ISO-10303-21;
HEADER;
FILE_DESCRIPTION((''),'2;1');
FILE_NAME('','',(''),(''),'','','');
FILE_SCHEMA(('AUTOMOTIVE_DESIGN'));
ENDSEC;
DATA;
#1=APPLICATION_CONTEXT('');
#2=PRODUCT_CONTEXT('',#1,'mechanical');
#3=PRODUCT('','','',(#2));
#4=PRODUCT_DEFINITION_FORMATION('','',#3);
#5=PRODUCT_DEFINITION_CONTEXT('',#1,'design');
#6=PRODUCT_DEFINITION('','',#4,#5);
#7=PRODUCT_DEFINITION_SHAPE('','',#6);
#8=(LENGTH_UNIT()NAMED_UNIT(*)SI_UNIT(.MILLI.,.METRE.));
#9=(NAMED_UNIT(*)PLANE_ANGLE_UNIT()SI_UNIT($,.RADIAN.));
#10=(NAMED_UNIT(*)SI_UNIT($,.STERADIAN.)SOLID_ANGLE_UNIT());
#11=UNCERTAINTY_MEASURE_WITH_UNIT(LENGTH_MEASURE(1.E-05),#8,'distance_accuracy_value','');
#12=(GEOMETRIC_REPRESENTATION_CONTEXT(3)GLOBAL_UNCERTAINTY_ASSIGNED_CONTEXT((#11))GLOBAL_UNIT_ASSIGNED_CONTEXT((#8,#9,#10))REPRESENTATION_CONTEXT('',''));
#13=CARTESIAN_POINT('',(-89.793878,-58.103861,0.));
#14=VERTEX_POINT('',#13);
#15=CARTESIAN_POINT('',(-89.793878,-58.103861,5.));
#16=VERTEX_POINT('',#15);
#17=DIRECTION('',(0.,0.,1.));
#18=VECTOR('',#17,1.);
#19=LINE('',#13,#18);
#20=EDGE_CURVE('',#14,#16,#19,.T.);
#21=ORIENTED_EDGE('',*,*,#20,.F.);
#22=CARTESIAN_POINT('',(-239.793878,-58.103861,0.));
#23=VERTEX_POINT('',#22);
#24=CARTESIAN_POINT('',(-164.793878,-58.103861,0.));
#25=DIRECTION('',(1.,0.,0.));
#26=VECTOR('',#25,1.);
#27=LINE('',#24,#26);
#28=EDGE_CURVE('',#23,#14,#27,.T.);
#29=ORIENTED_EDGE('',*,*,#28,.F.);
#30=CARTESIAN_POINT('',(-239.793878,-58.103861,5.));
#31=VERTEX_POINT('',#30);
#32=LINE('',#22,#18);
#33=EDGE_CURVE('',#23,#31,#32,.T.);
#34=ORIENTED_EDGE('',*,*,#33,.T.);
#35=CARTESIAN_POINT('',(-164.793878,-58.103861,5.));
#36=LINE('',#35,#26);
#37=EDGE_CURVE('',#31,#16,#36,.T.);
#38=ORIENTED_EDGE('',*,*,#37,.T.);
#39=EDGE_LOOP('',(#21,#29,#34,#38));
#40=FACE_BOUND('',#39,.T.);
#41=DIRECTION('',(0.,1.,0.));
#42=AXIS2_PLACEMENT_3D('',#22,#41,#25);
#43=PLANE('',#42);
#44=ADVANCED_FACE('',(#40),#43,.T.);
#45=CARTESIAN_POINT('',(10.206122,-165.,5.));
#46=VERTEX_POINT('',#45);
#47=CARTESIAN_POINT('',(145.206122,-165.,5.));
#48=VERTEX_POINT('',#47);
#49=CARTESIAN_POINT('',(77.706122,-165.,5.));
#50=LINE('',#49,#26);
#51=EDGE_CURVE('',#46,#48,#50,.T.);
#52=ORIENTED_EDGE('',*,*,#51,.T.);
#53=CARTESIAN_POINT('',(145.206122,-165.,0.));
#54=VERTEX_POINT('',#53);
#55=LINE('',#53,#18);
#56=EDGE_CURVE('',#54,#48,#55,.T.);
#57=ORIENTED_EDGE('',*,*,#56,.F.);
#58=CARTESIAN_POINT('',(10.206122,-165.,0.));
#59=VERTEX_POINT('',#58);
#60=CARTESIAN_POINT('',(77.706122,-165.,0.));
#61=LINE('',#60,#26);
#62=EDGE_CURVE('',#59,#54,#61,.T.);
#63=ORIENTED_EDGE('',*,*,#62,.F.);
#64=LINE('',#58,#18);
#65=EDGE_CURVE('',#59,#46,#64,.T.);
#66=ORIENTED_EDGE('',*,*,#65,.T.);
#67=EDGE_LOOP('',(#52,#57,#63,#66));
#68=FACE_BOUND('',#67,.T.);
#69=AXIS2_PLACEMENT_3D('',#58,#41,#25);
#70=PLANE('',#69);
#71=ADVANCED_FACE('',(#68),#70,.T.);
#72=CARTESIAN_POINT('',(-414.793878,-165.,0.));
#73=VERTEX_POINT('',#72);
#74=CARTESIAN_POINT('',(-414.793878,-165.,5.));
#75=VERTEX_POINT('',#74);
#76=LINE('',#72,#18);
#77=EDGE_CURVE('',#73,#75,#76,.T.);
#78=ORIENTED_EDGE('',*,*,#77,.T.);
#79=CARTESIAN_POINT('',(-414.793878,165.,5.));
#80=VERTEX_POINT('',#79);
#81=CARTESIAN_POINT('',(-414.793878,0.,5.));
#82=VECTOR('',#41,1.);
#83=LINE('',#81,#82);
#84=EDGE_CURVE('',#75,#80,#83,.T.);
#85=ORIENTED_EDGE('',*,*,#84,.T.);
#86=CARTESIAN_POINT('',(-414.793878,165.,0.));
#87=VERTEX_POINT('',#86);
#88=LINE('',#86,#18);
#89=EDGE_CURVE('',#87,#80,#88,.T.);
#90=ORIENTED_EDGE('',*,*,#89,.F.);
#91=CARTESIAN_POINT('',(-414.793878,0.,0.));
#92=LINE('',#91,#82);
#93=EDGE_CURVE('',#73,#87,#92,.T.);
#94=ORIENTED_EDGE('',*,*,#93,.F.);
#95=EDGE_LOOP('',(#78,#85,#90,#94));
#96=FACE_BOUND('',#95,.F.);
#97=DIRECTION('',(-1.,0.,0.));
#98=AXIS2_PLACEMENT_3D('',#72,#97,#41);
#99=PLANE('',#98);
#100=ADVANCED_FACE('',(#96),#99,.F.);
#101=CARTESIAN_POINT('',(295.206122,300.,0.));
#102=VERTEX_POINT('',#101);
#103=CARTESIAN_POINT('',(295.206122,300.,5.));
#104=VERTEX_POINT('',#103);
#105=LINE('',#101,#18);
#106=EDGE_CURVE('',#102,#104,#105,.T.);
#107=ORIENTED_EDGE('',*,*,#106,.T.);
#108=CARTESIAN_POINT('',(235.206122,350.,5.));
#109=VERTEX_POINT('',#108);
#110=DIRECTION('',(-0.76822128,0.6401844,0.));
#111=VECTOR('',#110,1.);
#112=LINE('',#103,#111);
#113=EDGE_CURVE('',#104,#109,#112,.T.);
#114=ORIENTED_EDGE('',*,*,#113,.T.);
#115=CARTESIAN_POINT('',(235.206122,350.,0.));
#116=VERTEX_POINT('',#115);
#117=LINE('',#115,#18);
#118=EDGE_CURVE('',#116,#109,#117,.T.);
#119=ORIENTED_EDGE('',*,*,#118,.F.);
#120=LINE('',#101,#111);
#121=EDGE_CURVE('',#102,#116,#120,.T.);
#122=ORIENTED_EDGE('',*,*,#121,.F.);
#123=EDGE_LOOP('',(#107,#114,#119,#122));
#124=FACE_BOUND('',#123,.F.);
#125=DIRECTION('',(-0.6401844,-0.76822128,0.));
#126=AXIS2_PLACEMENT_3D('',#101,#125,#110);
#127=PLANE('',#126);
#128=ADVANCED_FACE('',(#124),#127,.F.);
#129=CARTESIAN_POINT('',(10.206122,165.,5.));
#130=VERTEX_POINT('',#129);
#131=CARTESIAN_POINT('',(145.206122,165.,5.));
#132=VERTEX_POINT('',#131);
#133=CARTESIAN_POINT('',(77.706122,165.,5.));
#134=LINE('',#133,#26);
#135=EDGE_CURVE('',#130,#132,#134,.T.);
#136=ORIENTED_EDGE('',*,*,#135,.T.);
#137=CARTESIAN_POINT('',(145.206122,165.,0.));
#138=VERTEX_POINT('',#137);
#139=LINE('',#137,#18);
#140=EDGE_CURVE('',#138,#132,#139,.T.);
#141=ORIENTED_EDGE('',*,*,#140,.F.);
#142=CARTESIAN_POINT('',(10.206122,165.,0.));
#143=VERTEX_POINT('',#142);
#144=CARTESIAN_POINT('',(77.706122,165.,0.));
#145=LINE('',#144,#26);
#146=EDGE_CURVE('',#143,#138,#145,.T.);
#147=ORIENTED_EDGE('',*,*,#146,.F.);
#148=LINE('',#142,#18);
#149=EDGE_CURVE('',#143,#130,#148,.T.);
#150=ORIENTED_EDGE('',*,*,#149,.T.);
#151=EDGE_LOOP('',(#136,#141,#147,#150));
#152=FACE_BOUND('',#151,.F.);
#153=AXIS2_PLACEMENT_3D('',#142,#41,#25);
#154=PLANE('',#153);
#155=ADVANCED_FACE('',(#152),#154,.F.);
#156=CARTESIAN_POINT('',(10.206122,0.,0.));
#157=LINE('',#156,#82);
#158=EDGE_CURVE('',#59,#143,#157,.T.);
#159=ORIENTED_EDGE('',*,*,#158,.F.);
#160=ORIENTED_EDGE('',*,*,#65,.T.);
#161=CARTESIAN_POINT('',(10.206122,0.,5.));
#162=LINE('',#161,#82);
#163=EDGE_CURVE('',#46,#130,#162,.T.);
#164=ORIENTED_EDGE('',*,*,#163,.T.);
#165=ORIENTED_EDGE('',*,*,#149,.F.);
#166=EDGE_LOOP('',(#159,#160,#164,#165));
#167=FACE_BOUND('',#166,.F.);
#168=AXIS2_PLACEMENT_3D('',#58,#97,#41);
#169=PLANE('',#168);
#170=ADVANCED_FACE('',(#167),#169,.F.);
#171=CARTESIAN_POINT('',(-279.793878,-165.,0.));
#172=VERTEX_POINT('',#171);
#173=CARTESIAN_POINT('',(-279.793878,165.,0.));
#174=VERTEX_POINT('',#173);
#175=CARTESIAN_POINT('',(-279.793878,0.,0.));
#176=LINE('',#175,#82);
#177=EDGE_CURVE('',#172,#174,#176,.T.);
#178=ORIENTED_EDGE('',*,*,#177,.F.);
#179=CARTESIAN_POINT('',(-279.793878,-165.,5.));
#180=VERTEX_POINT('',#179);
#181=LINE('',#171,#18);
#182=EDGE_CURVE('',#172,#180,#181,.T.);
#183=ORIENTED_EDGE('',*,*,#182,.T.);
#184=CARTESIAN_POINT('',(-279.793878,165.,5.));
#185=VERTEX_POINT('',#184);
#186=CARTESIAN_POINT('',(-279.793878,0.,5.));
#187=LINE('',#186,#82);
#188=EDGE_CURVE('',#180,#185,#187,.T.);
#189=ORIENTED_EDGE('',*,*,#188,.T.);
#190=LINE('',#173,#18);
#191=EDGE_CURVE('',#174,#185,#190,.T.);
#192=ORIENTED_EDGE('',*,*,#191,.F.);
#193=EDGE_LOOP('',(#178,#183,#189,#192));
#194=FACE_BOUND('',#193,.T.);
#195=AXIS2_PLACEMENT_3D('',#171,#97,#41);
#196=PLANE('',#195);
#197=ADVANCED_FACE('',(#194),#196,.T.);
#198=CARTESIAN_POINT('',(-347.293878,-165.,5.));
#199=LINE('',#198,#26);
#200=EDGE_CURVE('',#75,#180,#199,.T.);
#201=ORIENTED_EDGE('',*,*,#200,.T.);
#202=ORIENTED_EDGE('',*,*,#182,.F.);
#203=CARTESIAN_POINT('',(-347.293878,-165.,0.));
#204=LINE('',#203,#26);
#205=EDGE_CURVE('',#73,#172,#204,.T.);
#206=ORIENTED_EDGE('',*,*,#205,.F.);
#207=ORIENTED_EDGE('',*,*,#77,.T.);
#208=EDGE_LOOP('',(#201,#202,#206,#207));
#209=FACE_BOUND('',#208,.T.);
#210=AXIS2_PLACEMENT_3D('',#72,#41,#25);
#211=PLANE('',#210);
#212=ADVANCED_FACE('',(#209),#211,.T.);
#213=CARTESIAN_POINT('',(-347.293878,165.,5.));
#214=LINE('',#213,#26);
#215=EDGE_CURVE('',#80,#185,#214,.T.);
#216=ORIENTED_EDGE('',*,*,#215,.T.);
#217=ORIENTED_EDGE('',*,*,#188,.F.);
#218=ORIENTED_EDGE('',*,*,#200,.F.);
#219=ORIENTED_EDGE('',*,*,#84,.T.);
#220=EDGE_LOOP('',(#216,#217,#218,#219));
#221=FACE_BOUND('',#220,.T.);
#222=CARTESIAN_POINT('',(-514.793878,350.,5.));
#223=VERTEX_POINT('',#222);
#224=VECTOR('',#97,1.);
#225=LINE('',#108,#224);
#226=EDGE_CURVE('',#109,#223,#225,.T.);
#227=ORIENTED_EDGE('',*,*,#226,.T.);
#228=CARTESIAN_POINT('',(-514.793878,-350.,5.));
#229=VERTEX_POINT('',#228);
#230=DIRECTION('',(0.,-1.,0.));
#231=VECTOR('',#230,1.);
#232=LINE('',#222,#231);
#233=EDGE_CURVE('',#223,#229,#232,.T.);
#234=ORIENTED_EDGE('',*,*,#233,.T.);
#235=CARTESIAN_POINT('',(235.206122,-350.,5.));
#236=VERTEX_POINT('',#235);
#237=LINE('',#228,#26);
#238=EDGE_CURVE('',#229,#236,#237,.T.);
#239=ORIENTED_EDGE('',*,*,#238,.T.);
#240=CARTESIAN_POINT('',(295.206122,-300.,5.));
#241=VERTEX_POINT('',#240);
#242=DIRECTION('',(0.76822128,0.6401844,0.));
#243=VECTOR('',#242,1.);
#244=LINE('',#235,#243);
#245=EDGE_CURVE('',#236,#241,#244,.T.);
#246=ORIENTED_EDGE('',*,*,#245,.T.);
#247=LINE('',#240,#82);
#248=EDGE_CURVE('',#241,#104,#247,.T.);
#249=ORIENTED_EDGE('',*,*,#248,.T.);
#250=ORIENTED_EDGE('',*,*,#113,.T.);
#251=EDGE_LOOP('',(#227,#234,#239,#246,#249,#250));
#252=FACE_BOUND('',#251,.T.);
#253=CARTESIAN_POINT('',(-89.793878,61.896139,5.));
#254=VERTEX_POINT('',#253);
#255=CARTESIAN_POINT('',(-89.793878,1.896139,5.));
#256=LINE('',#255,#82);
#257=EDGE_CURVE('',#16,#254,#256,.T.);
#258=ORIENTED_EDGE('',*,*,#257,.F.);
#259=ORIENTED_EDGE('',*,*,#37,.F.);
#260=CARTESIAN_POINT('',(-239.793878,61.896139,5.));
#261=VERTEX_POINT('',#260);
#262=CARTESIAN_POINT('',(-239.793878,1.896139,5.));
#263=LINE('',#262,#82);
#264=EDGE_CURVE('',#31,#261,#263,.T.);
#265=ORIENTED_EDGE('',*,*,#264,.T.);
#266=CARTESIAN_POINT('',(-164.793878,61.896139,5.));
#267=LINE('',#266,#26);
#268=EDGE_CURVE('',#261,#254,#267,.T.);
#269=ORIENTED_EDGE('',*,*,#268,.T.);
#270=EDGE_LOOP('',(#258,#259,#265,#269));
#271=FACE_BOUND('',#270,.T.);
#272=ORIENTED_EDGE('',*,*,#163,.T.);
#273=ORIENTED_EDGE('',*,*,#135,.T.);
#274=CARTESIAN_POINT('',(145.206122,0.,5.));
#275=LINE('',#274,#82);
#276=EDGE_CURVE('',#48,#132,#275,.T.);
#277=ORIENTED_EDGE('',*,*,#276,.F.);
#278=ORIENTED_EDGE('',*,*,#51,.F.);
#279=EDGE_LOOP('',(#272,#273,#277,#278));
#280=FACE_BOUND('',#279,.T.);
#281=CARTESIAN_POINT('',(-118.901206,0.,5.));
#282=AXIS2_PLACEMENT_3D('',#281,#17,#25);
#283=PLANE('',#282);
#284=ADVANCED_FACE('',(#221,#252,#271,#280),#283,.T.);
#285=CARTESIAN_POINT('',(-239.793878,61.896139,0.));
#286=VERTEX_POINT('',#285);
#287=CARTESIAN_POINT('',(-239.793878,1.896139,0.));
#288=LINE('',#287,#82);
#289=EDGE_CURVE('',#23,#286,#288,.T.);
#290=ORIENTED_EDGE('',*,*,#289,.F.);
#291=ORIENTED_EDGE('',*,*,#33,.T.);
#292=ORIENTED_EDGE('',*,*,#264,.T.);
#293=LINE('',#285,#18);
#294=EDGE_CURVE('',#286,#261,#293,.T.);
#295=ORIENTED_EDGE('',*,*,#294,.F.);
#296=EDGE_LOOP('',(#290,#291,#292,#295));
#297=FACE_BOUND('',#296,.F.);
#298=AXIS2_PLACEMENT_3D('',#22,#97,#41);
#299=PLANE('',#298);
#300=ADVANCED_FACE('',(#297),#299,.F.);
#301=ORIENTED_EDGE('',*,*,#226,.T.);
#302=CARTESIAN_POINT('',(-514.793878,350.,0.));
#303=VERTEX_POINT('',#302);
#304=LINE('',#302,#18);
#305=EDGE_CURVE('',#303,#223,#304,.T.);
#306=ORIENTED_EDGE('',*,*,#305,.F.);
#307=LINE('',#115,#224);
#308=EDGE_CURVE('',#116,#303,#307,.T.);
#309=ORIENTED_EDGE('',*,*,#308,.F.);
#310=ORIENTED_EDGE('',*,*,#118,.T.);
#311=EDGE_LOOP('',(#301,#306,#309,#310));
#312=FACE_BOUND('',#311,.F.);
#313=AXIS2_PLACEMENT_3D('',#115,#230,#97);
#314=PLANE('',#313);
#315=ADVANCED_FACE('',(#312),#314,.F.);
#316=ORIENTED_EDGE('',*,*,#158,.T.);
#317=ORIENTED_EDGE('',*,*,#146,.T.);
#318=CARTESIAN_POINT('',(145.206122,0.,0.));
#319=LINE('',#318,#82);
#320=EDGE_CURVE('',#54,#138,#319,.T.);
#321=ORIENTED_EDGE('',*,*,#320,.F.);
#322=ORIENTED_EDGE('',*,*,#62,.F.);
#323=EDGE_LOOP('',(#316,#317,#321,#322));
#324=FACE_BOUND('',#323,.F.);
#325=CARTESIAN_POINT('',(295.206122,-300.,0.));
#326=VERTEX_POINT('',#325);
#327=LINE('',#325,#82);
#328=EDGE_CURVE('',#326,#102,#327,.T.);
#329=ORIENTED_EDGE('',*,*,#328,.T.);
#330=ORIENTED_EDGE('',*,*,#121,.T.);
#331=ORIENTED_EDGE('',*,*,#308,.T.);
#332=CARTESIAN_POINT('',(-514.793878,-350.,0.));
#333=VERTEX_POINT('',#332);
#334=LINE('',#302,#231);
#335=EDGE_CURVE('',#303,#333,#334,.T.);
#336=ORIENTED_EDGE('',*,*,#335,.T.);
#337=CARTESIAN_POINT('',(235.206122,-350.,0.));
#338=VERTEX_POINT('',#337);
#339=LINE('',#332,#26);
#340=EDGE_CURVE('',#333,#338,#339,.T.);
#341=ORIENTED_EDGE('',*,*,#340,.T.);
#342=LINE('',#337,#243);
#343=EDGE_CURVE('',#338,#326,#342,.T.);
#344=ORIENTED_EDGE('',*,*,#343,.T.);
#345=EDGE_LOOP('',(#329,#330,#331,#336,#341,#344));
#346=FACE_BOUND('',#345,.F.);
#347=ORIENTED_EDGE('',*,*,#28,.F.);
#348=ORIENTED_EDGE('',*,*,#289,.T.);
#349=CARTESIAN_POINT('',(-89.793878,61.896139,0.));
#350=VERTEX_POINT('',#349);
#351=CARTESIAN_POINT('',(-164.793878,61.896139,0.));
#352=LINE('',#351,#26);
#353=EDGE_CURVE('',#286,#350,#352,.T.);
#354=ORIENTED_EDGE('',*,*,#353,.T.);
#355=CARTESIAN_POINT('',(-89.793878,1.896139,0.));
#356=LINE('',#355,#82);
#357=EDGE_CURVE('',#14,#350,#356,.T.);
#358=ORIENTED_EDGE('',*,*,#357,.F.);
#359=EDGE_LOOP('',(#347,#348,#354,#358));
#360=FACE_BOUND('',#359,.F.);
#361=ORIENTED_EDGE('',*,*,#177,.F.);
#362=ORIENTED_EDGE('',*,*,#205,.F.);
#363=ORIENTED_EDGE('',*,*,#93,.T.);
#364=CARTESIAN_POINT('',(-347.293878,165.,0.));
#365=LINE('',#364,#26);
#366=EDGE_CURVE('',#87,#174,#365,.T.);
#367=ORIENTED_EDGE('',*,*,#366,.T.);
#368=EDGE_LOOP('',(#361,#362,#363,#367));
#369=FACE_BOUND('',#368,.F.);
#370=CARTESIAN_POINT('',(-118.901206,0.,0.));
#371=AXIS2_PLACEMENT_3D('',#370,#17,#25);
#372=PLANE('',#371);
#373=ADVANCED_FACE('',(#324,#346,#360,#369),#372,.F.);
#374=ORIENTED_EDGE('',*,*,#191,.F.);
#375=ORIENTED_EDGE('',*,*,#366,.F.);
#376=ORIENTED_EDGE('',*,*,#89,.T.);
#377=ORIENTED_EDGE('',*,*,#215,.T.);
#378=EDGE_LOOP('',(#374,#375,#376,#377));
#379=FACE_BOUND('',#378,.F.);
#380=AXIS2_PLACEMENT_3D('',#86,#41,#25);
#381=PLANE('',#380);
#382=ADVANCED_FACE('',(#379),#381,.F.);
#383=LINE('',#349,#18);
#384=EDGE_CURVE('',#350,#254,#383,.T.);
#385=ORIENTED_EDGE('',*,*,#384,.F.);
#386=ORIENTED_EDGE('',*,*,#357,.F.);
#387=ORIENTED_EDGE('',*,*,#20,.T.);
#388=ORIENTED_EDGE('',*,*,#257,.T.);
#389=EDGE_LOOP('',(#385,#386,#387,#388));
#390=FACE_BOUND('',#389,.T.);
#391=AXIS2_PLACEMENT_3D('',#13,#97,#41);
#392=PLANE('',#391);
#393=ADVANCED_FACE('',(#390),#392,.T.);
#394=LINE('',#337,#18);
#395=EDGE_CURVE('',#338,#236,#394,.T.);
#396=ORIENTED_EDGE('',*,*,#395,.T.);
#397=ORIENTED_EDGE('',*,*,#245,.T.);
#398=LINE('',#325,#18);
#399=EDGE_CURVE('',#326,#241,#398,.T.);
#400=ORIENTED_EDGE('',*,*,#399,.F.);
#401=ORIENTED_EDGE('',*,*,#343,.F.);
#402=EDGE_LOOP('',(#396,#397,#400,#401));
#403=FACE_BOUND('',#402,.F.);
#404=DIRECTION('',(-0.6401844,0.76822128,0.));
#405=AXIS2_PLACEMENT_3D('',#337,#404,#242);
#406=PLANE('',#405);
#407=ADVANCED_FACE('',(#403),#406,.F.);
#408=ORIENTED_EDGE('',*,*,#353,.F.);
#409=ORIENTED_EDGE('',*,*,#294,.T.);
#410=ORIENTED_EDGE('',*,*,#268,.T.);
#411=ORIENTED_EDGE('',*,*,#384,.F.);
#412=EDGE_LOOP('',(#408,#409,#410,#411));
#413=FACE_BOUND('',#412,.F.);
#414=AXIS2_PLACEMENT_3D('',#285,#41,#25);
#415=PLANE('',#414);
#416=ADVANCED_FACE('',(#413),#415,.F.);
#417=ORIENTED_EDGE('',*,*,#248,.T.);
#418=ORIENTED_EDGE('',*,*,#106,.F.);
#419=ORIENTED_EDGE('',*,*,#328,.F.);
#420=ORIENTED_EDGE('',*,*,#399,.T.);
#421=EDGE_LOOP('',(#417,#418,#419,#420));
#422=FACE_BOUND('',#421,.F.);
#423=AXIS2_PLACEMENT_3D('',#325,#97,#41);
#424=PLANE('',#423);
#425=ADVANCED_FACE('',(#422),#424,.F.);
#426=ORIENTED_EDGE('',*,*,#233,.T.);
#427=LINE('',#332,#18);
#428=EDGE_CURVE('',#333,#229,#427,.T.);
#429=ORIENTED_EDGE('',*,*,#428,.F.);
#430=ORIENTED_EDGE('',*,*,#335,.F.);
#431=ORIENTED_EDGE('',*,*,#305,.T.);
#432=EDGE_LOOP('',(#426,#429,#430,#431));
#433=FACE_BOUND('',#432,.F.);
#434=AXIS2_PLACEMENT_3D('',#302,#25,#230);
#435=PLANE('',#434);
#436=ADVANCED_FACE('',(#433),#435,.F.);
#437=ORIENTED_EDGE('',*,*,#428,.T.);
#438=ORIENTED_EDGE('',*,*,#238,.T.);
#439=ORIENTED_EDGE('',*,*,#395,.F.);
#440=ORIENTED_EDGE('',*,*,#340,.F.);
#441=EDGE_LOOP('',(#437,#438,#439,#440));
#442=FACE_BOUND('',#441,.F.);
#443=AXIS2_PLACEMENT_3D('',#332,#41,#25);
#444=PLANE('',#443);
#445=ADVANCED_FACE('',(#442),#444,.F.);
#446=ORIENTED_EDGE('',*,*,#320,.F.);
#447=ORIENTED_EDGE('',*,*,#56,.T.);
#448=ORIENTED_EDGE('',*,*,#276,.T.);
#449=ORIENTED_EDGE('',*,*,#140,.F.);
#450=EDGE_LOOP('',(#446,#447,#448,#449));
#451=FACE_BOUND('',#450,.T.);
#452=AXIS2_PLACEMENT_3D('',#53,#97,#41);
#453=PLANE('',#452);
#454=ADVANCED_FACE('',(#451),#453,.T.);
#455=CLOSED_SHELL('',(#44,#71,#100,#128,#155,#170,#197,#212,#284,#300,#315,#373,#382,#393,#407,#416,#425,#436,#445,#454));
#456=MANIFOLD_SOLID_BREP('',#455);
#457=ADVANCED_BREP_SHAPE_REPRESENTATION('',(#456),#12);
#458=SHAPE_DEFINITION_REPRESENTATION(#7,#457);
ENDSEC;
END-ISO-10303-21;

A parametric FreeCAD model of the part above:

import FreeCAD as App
import Part
import Sketcher
from FreeCAD import Vector
Q = App.Units.Quantity

doc = App.newDocument("Part")
body = doc.addObject("PartDesign::Body", "Body")

sketch1 = body.newObject("Sketcher::SketchObject", "Sketch")
sketch1.AttachmentSupport = (doc.getObject("XY_Plane"), [""])
sketch1.MapMode = "FlatFace"
sketch1.addGeometry(Part.LineSegment(Vector(295, 300, 0), Vector(235, 350, 0)), False)
sketch1.addGeometry(Part.LineSegment(Vector(235, 350, 0), Vector(-515, 350, 0)), False)
sketch1.addGeometry(Part.LineSegment(Vector(-515, 350, 0), Vector(-515, -350, 0)), False)
sketch1.addGeometry(Part.LineSegment(Vector(-515, -350, 0), Vector(235, -350, 0)), False)
sketch1.addGeometry(Part.LineSegment(Vector(235, -350, 0), Vector(295, -300, 0)), False)
sketch1.addGeometry(Part.LineSegment(Vector(295, -300, 0), Vector(295, 300, 0)), False)
sketch1.addGeometry(Part.LineSegment(Vector(-280, -165, 0), Vector(-415, -165, 0)), False)
sketch1.addGeometry(Part.LineSegment(Vector(-415, -165, 0), Vector(-415, 165, 0)), False)
sketch1.addGeometry(Part.LineSegment(Vector(-415, 165, 0), Vector(-280, 165, 0)), False)
sketch1.addGeometry(Part.LineSegment(Vector(-280, 165, 0), Vector(-280, -165, 0)), False)
sketch1.addGeometry(Part.LineSegment(Vector(-90, -58, 0), Vector(-240, -58, 0)), False)
sketch1.addGeometry(Part.LineSegment(Vector(-240, -58, 0), Vector(-240, 62, 0)), False)
sketch1.addGeometry(Part.LineSegment(Vector(-240, 62, 0), Vector(-90, 62, 0)), False)
sketch1.addGeometry(Part.LineSegment(Vector(-90, 62, 0), Vector(-90, -58, 0)), False)
sketch1.addGeometry(Part.LineSegment(Vector(145, -165, 0), Vector(10, -165, 0)), False)
sketch1.addGeometry(Part.LineSegment(Vector(10, -165, 0), Vector(10, 165, 0)), False)
sketch1.addGeometry(Part.LineSegment(Vector(10, 165, 0), Vector(145, 165, 0)), False)
sketch1.addGeometry(Part.LineSegment(Vector(145, 165, 0), Vector(145, -165, 0)), False)
sketch1.addConstraint(Sketcher.Constraint("Coincident", 0, 2, 1, 1))
sketch1.addConstraint(Sketcher.Constraint("Coincident", 1, 2, 2, 1))
sketch1.addConstraint(Sketcher.Constraint("Coincident", 2, 2, 3, 1))
sketch1.addConstraint(Sketcher.Constraint("Coincident", 3, 2, 4, 1))
sketch1.addConstraint(Sketcher.Constraint("Coincident", 4, 2, 5, 1))
sketch1.addConstraint(Sketcher.Constraint("Coincident", 5, 2, 0, 1))
sketch1.addConstraint(Sketcher.Constraint("Coincident", 6, 2, 7, 1))
sketch1.addConstraint(Sketcher.Constraint("Coincident", 7, 2, 8, 1))
sketch1.addConstraint(Sketcher.Constraint("Coincident", 8, 2, 9, 1))
sketch1.addConstraint(Sketcher.Constraint("Coincident", 9, 2, 6, 1))
sketch1.addConstraint(Sketcher.Constraint("Coincident", 10, 2, 11, 1))
sketch1.addConstraint(Sketcher.Constraint("Coincident", 11, 2, 12, 1))
sketch1.addConstraint(Sketcher.Constraint("Coincident", 12, 2, 13, 1))
sketch1.addConstraint(Sketcher.Constraint("Coincident", 13, 2, 10, 1))
sketch1.addConstraint(Sketcher.Constraint("Coincident", 14, 2, 15, 1))
sketch1.addConstraint(Sketcher.Constraint("Coincident", 15, 2, 16, 1))
sketch1.addConstraint(Sketcher.Constraint("Coincident", 16, 2, 17, 1))
sketch1.addConstraint(Sketcher.Constraint("Coincident", 17, 2, 14, 1))
sketch1.addConstraint(Sketcher.Constraint("Horizontal", 1))
sketch1.addConstraint(Sketcher.Constraint("Vertical", 2))
sketch1.addConstraint(Sketcher.Constraint("Horizontal", 3))
sketch1.addConstraint(Sketcher.Constraint("Vertical", 5))
sketch1.addConstraint(Sketcher.Constraint("Horizontal", 6))
sketch1.addConstraint(Sketcher.Constraint("Vertical", 7))
sketch1.addConstraint(Sketcher.Constraint("Horizontal", 8))
sketch1.addConstraint(Sketcher.Constraint("Vertical", 9))
sketch1.addConstraint(Sketcher.Constraint("Horizontal", 10))
sketch1.addConstraint(Sketcher.Constraint("Vertical", 11))
sketch1.addConstraint(Sketcher.Constraint("Horizontal", 12))
sketch1.addConstraint(Sketcher.Constraint("Vertical", 13))
sketch1.addConstraint(Sketcher.Constraint("Horizontal", 14))
sketch1.addConstraint(Sketcher.Constraint("Vertical", 15))
sketch1.addConstraint(Sketcher.Constraint("Horizontal", 16))
sketch1.addConstraint(Sketcher.Constraint("Vertical", 17))
sketch1.addConstraint(Sketcher.Constraint("Symmetric", 0, 2, 3, 2, -1))
sketch1.addConstraint(Sketcher.Constraint("Horizontal", 9, 2, 14, 2))
sketch1.addConstraint(Sketcher.Constraint("Horizontal", 8, 2, 15, 2))
sketch1.addConstraint(Sketcher.Constraint("Equal", 8, 14))
sketch1.addConstraint(Sketcher.Constraint("Equal", 0, 4))
sketch1.addConstraint(Sketcher.Constraint("DistanceX", 1, 2, 1, 1, Q("750 mm")))
sketch1.addConstraint(Sketcher.Constraint("DistanceX", 6, 2, 6, 1, Q("135 mm")))
sketch1.addConstraint(Sketcher.Constraint("DistanceX", 10, 2, 10, 1, Q("150 mm")))
sketch1.addConstraint(Sketcher.Constraint("DistanceY", 2, 2, 2, 1, Q("700 mm")))
sketch1.addConstraint(Sketcher.Constraint("DistanceY", 5, 1, 5, 2, Q("600 mm")))
sketch1.addConstraint(Sketcher.Constraint("DistanceY", 7, 1, 7, 2, Q("330 mm")))
sketch1.addConstraint(Sketcher.Constraint("DistanceY", 11, 1, 11, 2, Q("120 mm")))
sketch1.addConstraint(Sketcher.Constraint("DistanceY", 6, 2, -1, 1, Q("165 mm")))
sketch1.addConstraint(Sketcher.Constraint("DistanceX", 3, 2, 4, 2, Q("60 mm")))
sketch1.addConstraint(Sketcher.Constraint("DistanceX", 2, 2, 6, 2, Q("100 mm")))
sketch1.addConstraint(Sketcher.Constraint("DistanceX", 9, 2, 10, 2, Q("40 mm")))
sketch1.addConstraint(Sketcher.Constraint("DistanceX", 13, 2, 14, 2, Q("100 mm")))
sketch1.addConstraint(Sketcher.Constraint("DistanceX", -1, 1, 0, 2, Q("235.206122 mm")))
sketch1.addConstraint(Sketcher.Constraint("DistanceY", 10, 2, -1, 1, Q("58.103861 mm")))
pad1 = body.newObject("PartDesign::Pad", "Pad")
pad1.Profile = sketch1
pad1.Length = 5

doc.recompute()
